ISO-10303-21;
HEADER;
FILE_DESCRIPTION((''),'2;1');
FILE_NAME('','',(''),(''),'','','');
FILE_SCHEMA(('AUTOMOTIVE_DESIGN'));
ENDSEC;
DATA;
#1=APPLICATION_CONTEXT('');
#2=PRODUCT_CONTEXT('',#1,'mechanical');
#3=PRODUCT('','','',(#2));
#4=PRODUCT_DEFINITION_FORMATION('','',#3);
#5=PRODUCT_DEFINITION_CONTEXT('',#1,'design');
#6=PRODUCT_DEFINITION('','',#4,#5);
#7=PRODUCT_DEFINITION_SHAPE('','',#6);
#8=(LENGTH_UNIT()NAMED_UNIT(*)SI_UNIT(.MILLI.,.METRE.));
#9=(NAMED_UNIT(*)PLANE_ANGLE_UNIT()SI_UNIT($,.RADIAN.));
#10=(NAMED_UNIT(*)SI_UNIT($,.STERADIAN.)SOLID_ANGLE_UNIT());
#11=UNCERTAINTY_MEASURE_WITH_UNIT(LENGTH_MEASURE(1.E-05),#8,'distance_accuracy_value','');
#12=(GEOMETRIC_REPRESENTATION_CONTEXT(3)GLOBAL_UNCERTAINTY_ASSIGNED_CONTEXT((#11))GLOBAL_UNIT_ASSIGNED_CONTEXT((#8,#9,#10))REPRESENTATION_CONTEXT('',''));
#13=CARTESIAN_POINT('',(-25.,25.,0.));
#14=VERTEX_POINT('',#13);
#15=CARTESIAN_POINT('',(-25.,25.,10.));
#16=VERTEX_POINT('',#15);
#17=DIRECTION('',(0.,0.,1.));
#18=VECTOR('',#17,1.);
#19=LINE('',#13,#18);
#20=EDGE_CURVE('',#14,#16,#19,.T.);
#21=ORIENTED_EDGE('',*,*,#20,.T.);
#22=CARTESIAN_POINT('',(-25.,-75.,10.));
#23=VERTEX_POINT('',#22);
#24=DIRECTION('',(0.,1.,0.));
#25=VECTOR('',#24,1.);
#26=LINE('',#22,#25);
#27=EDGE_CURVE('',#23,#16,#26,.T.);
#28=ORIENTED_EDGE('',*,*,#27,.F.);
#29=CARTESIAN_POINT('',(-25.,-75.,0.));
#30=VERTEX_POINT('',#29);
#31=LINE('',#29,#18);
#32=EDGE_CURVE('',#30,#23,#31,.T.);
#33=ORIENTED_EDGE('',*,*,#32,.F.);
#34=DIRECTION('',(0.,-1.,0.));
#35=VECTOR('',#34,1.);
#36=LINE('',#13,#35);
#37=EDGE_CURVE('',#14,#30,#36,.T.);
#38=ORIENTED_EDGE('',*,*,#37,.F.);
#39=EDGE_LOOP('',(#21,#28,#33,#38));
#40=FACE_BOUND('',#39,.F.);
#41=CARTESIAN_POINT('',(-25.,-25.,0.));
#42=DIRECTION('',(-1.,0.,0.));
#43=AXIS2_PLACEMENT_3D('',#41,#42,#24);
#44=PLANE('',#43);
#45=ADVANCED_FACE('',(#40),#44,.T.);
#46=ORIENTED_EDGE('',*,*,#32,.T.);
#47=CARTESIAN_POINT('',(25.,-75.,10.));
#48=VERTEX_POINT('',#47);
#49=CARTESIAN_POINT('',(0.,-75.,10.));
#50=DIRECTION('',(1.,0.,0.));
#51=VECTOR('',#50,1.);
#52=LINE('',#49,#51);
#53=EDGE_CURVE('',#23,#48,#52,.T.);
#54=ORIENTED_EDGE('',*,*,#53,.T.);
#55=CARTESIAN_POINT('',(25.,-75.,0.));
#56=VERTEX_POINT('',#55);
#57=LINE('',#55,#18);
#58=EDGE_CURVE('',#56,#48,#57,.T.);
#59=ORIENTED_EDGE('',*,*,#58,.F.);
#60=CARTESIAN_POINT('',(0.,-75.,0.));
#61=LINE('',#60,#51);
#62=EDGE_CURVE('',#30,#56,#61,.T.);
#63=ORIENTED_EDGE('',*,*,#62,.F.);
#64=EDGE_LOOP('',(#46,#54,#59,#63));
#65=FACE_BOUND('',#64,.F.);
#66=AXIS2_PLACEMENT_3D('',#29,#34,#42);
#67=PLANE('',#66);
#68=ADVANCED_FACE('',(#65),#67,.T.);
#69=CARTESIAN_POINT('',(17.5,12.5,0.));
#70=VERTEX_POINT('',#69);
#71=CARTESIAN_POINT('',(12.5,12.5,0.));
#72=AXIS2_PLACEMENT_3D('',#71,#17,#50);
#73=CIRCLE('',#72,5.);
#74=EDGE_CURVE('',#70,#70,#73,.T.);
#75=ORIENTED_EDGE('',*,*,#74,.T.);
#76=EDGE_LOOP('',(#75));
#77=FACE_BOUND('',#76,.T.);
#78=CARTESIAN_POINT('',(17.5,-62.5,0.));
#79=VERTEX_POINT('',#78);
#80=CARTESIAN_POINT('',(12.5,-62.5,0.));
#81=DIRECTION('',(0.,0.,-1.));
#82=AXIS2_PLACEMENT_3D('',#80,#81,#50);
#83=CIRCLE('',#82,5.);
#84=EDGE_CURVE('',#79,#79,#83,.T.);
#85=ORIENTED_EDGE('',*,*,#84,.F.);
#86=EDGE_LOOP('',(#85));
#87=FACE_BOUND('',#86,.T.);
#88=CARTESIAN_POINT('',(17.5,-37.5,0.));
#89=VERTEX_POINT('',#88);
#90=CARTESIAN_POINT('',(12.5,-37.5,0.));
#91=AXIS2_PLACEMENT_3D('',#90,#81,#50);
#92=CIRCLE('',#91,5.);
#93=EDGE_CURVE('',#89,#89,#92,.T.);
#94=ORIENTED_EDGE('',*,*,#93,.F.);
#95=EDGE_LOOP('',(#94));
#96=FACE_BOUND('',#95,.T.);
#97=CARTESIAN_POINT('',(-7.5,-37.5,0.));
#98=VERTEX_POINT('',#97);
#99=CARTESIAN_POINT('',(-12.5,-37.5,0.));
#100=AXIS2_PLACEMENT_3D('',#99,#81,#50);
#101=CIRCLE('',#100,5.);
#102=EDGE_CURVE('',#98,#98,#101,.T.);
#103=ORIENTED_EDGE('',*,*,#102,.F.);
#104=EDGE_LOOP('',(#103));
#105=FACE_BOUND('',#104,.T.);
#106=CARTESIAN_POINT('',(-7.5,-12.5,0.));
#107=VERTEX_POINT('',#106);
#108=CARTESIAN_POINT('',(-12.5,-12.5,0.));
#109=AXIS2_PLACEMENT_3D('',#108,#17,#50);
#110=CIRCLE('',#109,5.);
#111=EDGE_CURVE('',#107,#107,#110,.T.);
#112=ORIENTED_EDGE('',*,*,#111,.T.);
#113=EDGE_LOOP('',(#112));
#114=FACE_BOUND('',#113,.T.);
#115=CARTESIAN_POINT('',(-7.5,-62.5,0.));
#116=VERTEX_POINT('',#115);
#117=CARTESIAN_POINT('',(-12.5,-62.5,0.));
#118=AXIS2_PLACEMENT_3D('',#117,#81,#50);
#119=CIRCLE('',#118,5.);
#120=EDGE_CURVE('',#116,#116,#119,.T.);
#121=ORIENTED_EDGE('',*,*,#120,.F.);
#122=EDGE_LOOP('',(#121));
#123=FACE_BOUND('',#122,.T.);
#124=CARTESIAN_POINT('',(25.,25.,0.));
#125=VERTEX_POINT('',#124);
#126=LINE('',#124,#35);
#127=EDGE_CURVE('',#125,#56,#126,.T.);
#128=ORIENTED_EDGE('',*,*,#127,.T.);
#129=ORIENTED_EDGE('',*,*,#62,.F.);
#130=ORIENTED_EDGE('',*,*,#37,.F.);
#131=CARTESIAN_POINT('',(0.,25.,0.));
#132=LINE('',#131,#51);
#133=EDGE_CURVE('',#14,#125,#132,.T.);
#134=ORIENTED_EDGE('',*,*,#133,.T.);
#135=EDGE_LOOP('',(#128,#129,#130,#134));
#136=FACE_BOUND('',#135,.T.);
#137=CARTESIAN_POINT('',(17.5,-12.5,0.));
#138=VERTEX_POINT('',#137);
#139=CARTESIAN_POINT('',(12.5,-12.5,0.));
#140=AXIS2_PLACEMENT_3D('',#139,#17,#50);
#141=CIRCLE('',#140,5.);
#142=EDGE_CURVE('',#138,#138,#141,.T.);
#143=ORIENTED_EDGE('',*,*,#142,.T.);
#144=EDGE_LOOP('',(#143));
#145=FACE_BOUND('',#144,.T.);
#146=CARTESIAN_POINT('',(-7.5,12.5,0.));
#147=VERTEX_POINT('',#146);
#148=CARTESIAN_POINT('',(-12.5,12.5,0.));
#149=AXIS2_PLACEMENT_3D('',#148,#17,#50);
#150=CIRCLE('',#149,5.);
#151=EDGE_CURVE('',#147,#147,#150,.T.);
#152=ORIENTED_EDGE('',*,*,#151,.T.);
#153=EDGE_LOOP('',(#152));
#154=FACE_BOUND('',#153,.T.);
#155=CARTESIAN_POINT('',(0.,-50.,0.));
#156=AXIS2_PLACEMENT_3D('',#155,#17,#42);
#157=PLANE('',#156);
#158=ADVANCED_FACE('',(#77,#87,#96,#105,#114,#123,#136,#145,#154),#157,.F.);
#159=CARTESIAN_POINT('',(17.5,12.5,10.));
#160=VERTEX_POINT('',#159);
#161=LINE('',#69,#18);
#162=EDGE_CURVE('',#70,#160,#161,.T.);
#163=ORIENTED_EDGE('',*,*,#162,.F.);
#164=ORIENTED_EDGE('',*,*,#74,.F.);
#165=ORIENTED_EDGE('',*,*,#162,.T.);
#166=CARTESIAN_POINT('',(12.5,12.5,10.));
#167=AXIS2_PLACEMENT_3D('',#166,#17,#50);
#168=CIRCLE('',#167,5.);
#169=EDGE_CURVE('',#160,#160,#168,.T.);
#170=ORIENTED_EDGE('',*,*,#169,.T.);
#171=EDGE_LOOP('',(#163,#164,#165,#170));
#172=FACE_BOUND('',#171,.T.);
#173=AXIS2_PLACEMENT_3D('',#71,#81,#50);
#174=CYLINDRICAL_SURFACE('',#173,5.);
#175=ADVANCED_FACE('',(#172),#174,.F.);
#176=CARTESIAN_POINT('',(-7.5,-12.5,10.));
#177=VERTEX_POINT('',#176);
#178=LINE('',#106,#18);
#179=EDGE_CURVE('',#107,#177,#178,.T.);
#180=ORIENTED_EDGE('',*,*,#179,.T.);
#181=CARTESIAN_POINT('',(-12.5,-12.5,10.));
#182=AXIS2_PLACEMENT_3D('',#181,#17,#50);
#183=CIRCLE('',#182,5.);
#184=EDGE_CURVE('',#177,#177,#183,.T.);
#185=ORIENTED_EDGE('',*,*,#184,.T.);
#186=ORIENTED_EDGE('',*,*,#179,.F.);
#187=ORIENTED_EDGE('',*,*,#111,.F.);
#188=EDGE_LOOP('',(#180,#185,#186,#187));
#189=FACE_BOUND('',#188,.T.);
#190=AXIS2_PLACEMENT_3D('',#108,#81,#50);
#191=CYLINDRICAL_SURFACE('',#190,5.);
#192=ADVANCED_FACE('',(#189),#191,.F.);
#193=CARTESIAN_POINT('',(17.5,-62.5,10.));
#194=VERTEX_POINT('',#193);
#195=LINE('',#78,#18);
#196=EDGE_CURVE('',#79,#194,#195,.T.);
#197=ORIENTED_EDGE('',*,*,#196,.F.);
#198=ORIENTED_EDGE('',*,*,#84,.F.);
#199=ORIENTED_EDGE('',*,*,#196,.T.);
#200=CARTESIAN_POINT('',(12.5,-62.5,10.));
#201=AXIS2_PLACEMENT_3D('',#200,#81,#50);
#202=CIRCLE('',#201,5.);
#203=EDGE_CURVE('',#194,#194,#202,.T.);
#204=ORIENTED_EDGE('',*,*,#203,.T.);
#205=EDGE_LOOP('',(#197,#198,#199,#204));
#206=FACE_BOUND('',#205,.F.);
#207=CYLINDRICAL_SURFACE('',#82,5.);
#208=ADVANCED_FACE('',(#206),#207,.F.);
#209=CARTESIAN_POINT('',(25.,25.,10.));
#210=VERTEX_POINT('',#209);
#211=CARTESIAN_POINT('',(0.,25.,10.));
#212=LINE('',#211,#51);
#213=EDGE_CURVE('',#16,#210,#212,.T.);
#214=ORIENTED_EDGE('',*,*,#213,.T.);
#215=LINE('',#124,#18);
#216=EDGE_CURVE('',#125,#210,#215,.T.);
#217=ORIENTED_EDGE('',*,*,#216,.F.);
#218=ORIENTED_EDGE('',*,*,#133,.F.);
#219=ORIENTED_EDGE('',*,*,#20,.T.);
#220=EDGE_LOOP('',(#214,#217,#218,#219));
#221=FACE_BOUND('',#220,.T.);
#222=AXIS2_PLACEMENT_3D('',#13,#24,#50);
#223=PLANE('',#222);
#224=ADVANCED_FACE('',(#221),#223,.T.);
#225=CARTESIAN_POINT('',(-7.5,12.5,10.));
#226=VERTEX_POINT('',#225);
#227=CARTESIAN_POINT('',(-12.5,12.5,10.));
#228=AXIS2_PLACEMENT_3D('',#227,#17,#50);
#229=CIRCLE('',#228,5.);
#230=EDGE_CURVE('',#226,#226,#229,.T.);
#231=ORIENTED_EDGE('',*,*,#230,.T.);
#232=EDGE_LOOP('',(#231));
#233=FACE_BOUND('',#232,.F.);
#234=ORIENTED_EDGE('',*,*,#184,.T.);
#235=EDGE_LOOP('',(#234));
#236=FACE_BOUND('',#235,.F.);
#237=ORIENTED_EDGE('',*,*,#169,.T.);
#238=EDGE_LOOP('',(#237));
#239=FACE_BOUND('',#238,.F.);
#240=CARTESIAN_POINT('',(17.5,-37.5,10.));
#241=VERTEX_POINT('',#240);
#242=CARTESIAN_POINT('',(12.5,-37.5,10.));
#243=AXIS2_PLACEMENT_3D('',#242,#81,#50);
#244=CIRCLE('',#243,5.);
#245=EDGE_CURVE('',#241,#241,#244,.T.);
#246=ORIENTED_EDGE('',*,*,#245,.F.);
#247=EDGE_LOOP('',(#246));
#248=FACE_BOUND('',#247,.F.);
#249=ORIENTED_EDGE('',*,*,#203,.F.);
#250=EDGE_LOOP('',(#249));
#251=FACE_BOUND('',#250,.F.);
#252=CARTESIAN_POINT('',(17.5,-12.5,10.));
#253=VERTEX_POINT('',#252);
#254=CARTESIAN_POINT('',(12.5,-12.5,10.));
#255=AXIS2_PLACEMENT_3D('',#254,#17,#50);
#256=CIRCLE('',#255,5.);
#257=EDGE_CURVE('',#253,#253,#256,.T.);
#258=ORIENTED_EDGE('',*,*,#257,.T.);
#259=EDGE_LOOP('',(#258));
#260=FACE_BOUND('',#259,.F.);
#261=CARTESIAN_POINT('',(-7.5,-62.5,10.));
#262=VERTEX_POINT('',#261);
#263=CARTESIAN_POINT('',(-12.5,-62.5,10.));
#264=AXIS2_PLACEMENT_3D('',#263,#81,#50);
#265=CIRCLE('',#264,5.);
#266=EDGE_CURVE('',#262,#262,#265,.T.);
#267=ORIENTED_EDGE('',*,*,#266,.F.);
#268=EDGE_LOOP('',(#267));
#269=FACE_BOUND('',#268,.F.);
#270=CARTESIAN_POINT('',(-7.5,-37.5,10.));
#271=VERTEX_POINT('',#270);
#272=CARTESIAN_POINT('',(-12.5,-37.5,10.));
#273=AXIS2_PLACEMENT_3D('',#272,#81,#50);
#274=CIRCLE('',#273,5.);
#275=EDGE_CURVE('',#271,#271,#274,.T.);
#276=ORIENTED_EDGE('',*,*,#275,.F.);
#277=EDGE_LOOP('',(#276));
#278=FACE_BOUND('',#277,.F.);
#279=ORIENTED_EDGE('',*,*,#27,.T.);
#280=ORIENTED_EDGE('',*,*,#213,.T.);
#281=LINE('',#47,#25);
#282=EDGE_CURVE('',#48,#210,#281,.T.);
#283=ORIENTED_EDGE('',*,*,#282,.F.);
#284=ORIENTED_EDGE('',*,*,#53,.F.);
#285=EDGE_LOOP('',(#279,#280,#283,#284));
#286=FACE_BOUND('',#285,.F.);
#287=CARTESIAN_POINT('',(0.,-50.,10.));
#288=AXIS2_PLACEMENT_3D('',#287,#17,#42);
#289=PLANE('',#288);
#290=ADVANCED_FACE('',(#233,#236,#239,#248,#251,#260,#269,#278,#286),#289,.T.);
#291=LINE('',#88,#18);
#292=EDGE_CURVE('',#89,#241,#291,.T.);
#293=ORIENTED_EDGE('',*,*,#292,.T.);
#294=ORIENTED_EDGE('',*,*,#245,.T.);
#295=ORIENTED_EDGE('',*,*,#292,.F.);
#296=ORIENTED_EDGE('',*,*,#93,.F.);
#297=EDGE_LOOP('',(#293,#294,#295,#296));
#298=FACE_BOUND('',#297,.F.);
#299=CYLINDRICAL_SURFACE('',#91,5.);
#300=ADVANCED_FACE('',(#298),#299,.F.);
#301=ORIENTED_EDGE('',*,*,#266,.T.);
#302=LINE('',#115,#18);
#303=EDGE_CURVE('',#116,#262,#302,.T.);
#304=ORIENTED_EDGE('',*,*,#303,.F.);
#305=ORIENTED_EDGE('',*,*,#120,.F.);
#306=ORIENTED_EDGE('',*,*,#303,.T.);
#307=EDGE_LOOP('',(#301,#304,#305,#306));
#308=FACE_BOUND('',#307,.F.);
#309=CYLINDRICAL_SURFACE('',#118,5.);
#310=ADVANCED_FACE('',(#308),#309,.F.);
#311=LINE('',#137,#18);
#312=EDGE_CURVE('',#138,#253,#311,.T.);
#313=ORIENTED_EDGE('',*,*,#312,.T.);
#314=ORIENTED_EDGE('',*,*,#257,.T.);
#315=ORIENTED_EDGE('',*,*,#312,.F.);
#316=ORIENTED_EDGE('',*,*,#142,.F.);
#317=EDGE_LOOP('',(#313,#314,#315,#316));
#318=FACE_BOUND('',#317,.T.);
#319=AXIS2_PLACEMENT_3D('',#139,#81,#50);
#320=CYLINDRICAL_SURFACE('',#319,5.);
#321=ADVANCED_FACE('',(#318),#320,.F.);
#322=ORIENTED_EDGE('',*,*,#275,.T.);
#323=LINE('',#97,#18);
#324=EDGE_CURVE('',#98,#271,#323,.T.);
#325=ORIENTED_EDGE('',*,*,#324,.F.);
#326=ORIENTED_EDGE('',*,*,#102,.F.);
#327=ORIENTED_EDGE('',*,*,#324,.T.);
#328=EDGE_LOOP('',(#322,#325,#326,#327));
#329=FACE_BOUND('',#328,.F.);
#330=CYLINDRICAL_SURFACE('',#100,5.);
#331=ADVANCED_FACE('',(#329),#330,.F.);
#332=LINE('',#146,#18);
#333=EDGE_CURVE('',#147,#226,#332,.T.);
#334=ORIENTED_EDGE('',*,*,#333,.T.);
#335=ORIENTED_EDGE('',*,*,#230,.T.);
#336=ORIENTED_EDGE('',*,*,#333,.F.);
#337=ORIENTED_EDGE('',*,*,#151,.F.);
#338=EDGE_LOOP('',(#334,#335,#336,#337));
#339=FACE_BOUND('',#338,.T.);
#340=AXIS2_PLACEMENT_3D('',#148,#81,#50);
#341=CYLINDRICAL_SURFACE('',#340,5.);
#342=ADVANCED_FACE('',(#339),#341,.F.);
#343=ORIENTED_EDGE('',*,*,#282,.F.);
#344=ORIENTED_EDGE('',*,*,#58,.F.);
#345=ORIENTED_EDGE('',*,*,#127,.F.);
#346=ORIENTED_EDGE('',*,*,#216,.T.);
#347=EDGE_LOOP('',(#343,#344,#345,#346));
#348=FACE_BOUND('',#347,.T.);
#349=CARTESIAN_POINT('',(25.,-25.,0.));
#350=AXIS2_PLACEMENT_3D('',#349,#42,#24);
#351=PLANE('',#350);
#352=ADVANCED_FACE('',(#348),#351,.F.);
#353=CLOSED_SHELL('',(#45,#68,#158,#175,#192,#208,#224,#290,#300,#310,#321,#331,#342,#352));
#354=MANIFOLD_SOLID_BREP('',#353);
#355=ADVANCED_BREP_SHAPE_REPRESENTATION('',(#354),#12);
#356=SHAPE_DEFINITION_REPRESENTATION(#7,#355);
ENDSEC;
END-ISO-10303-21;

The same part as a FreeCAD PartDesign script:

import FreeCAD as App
import Part
import Sketcher


def add_polygon(sketch, points):
    """Adds a closed chain of lines whose ends are joined by coincident constraints."""
    first, n = sketch.GeometryCount, len(points)
    for a, b in zip(points, points[1:] + points[:1]):
        sketch.addGeometry(Part.LineSegment(App.Vector(*a, 0), App.Vector(*b, 0)), False)
    for i in range(n):
        sketch.addConstraint(Sketcher.Constraint("Coincident", first + i, 2, first + (i + 1) % n, 1))

doc = App.newDocument("Part")
body = doc.addObject("PartDesign::Body", "Body")

sketch1 = body.newObject("Sketcher::SketchObject", "Sketch")
sketch1.AttachmentSupport = (doc.getObject("XY_Plane"), [""])
sketch1.MapMode = "FlatFace"
add_polygon(sketch1, [(-25, 25), (-25, -25), (25, -25), (25, 25)])
sketch1.addGeometry(Part.Circle(App.Vector(-12, -12, 0), App.Vector(0, 0, 1), 5), False)
sketch1.addGeometry(Part.Circle(App.Vector(12, -12, 0), App.Vector(0, 0, 1), 5), False)
sketch1.addGeometry(Part.Circle(App.Vector(-12, 12, 0), App.Vector(0, 0, 1), 5), False)
sketch1.addGeometry(Part.Circle(App.Vector(12, 12, 0), App.Vector(0, 0, 1), 5), False)
sketch1.addConstraint([
    Sketcher.Constraint("Vertical", 0),
    Sketcher.Constraint("Horizontal", 1),
    Sketcher.Constraint("Vertical", 2),
    Sketcher.Constraint("Horizontal", 3),
    Sketcher.Constraint("Equal", 4, 5),
    Sketcher.Constraint("Equal", 5, 6),
    Sketcher.Constraint("Equal", 6, 7),
    Sketcher.Constraint("Symmetric", 5, 3, 6, 3, -1, 1),
    Sketcher.Constraint("Symmetric", 4, 3, 7, 3, -1, 1),
    Sketcher.Constraint("Symmetric", 0, 2, 2, 2, -1, 1),
    Sketcher.Constraint("Symmetric", 4, 3, 5, 3, -2),
    Sketcher.Constraint("Equal", 3, 0),
    Sketcher.Constraint("Diameter", 4, 10.0),
    Sketcher.Constraint("DistanceX", 1, 1, 1, 2, 50.0),
    Sketcher.Constraint("DistanceX", 4, 3, 5, 3, 25.0),
    Sketcher.Constraint("DistanceY", 4, 3, 6, 3, 25.0),
])
pad1 = body.newObject("PartDesign::Pad", "Pad")
pad1.Profile = sketch1
pad1.Length = 10
doc.recompute()

datumplane = body.newObject("PartDesign::Plane", "DatumPlane")
datumplane.AttachmentSupport = (doc.getObject("XZ_Plane"), [""])
datumplane.MapMode = "FlatFace"
datumplane.AttachmentOffset = App.Placement(App.Vector(0, 0, 25), App.Rotation())
mirrored = body.newObject("PartDesign::Mirrored", "Mirrored")
mirrored.Originals = [pad1]
mirrored.MirrorPlane = (datumplane, [""])
body.Tip = mirrored

doc.recompute()
